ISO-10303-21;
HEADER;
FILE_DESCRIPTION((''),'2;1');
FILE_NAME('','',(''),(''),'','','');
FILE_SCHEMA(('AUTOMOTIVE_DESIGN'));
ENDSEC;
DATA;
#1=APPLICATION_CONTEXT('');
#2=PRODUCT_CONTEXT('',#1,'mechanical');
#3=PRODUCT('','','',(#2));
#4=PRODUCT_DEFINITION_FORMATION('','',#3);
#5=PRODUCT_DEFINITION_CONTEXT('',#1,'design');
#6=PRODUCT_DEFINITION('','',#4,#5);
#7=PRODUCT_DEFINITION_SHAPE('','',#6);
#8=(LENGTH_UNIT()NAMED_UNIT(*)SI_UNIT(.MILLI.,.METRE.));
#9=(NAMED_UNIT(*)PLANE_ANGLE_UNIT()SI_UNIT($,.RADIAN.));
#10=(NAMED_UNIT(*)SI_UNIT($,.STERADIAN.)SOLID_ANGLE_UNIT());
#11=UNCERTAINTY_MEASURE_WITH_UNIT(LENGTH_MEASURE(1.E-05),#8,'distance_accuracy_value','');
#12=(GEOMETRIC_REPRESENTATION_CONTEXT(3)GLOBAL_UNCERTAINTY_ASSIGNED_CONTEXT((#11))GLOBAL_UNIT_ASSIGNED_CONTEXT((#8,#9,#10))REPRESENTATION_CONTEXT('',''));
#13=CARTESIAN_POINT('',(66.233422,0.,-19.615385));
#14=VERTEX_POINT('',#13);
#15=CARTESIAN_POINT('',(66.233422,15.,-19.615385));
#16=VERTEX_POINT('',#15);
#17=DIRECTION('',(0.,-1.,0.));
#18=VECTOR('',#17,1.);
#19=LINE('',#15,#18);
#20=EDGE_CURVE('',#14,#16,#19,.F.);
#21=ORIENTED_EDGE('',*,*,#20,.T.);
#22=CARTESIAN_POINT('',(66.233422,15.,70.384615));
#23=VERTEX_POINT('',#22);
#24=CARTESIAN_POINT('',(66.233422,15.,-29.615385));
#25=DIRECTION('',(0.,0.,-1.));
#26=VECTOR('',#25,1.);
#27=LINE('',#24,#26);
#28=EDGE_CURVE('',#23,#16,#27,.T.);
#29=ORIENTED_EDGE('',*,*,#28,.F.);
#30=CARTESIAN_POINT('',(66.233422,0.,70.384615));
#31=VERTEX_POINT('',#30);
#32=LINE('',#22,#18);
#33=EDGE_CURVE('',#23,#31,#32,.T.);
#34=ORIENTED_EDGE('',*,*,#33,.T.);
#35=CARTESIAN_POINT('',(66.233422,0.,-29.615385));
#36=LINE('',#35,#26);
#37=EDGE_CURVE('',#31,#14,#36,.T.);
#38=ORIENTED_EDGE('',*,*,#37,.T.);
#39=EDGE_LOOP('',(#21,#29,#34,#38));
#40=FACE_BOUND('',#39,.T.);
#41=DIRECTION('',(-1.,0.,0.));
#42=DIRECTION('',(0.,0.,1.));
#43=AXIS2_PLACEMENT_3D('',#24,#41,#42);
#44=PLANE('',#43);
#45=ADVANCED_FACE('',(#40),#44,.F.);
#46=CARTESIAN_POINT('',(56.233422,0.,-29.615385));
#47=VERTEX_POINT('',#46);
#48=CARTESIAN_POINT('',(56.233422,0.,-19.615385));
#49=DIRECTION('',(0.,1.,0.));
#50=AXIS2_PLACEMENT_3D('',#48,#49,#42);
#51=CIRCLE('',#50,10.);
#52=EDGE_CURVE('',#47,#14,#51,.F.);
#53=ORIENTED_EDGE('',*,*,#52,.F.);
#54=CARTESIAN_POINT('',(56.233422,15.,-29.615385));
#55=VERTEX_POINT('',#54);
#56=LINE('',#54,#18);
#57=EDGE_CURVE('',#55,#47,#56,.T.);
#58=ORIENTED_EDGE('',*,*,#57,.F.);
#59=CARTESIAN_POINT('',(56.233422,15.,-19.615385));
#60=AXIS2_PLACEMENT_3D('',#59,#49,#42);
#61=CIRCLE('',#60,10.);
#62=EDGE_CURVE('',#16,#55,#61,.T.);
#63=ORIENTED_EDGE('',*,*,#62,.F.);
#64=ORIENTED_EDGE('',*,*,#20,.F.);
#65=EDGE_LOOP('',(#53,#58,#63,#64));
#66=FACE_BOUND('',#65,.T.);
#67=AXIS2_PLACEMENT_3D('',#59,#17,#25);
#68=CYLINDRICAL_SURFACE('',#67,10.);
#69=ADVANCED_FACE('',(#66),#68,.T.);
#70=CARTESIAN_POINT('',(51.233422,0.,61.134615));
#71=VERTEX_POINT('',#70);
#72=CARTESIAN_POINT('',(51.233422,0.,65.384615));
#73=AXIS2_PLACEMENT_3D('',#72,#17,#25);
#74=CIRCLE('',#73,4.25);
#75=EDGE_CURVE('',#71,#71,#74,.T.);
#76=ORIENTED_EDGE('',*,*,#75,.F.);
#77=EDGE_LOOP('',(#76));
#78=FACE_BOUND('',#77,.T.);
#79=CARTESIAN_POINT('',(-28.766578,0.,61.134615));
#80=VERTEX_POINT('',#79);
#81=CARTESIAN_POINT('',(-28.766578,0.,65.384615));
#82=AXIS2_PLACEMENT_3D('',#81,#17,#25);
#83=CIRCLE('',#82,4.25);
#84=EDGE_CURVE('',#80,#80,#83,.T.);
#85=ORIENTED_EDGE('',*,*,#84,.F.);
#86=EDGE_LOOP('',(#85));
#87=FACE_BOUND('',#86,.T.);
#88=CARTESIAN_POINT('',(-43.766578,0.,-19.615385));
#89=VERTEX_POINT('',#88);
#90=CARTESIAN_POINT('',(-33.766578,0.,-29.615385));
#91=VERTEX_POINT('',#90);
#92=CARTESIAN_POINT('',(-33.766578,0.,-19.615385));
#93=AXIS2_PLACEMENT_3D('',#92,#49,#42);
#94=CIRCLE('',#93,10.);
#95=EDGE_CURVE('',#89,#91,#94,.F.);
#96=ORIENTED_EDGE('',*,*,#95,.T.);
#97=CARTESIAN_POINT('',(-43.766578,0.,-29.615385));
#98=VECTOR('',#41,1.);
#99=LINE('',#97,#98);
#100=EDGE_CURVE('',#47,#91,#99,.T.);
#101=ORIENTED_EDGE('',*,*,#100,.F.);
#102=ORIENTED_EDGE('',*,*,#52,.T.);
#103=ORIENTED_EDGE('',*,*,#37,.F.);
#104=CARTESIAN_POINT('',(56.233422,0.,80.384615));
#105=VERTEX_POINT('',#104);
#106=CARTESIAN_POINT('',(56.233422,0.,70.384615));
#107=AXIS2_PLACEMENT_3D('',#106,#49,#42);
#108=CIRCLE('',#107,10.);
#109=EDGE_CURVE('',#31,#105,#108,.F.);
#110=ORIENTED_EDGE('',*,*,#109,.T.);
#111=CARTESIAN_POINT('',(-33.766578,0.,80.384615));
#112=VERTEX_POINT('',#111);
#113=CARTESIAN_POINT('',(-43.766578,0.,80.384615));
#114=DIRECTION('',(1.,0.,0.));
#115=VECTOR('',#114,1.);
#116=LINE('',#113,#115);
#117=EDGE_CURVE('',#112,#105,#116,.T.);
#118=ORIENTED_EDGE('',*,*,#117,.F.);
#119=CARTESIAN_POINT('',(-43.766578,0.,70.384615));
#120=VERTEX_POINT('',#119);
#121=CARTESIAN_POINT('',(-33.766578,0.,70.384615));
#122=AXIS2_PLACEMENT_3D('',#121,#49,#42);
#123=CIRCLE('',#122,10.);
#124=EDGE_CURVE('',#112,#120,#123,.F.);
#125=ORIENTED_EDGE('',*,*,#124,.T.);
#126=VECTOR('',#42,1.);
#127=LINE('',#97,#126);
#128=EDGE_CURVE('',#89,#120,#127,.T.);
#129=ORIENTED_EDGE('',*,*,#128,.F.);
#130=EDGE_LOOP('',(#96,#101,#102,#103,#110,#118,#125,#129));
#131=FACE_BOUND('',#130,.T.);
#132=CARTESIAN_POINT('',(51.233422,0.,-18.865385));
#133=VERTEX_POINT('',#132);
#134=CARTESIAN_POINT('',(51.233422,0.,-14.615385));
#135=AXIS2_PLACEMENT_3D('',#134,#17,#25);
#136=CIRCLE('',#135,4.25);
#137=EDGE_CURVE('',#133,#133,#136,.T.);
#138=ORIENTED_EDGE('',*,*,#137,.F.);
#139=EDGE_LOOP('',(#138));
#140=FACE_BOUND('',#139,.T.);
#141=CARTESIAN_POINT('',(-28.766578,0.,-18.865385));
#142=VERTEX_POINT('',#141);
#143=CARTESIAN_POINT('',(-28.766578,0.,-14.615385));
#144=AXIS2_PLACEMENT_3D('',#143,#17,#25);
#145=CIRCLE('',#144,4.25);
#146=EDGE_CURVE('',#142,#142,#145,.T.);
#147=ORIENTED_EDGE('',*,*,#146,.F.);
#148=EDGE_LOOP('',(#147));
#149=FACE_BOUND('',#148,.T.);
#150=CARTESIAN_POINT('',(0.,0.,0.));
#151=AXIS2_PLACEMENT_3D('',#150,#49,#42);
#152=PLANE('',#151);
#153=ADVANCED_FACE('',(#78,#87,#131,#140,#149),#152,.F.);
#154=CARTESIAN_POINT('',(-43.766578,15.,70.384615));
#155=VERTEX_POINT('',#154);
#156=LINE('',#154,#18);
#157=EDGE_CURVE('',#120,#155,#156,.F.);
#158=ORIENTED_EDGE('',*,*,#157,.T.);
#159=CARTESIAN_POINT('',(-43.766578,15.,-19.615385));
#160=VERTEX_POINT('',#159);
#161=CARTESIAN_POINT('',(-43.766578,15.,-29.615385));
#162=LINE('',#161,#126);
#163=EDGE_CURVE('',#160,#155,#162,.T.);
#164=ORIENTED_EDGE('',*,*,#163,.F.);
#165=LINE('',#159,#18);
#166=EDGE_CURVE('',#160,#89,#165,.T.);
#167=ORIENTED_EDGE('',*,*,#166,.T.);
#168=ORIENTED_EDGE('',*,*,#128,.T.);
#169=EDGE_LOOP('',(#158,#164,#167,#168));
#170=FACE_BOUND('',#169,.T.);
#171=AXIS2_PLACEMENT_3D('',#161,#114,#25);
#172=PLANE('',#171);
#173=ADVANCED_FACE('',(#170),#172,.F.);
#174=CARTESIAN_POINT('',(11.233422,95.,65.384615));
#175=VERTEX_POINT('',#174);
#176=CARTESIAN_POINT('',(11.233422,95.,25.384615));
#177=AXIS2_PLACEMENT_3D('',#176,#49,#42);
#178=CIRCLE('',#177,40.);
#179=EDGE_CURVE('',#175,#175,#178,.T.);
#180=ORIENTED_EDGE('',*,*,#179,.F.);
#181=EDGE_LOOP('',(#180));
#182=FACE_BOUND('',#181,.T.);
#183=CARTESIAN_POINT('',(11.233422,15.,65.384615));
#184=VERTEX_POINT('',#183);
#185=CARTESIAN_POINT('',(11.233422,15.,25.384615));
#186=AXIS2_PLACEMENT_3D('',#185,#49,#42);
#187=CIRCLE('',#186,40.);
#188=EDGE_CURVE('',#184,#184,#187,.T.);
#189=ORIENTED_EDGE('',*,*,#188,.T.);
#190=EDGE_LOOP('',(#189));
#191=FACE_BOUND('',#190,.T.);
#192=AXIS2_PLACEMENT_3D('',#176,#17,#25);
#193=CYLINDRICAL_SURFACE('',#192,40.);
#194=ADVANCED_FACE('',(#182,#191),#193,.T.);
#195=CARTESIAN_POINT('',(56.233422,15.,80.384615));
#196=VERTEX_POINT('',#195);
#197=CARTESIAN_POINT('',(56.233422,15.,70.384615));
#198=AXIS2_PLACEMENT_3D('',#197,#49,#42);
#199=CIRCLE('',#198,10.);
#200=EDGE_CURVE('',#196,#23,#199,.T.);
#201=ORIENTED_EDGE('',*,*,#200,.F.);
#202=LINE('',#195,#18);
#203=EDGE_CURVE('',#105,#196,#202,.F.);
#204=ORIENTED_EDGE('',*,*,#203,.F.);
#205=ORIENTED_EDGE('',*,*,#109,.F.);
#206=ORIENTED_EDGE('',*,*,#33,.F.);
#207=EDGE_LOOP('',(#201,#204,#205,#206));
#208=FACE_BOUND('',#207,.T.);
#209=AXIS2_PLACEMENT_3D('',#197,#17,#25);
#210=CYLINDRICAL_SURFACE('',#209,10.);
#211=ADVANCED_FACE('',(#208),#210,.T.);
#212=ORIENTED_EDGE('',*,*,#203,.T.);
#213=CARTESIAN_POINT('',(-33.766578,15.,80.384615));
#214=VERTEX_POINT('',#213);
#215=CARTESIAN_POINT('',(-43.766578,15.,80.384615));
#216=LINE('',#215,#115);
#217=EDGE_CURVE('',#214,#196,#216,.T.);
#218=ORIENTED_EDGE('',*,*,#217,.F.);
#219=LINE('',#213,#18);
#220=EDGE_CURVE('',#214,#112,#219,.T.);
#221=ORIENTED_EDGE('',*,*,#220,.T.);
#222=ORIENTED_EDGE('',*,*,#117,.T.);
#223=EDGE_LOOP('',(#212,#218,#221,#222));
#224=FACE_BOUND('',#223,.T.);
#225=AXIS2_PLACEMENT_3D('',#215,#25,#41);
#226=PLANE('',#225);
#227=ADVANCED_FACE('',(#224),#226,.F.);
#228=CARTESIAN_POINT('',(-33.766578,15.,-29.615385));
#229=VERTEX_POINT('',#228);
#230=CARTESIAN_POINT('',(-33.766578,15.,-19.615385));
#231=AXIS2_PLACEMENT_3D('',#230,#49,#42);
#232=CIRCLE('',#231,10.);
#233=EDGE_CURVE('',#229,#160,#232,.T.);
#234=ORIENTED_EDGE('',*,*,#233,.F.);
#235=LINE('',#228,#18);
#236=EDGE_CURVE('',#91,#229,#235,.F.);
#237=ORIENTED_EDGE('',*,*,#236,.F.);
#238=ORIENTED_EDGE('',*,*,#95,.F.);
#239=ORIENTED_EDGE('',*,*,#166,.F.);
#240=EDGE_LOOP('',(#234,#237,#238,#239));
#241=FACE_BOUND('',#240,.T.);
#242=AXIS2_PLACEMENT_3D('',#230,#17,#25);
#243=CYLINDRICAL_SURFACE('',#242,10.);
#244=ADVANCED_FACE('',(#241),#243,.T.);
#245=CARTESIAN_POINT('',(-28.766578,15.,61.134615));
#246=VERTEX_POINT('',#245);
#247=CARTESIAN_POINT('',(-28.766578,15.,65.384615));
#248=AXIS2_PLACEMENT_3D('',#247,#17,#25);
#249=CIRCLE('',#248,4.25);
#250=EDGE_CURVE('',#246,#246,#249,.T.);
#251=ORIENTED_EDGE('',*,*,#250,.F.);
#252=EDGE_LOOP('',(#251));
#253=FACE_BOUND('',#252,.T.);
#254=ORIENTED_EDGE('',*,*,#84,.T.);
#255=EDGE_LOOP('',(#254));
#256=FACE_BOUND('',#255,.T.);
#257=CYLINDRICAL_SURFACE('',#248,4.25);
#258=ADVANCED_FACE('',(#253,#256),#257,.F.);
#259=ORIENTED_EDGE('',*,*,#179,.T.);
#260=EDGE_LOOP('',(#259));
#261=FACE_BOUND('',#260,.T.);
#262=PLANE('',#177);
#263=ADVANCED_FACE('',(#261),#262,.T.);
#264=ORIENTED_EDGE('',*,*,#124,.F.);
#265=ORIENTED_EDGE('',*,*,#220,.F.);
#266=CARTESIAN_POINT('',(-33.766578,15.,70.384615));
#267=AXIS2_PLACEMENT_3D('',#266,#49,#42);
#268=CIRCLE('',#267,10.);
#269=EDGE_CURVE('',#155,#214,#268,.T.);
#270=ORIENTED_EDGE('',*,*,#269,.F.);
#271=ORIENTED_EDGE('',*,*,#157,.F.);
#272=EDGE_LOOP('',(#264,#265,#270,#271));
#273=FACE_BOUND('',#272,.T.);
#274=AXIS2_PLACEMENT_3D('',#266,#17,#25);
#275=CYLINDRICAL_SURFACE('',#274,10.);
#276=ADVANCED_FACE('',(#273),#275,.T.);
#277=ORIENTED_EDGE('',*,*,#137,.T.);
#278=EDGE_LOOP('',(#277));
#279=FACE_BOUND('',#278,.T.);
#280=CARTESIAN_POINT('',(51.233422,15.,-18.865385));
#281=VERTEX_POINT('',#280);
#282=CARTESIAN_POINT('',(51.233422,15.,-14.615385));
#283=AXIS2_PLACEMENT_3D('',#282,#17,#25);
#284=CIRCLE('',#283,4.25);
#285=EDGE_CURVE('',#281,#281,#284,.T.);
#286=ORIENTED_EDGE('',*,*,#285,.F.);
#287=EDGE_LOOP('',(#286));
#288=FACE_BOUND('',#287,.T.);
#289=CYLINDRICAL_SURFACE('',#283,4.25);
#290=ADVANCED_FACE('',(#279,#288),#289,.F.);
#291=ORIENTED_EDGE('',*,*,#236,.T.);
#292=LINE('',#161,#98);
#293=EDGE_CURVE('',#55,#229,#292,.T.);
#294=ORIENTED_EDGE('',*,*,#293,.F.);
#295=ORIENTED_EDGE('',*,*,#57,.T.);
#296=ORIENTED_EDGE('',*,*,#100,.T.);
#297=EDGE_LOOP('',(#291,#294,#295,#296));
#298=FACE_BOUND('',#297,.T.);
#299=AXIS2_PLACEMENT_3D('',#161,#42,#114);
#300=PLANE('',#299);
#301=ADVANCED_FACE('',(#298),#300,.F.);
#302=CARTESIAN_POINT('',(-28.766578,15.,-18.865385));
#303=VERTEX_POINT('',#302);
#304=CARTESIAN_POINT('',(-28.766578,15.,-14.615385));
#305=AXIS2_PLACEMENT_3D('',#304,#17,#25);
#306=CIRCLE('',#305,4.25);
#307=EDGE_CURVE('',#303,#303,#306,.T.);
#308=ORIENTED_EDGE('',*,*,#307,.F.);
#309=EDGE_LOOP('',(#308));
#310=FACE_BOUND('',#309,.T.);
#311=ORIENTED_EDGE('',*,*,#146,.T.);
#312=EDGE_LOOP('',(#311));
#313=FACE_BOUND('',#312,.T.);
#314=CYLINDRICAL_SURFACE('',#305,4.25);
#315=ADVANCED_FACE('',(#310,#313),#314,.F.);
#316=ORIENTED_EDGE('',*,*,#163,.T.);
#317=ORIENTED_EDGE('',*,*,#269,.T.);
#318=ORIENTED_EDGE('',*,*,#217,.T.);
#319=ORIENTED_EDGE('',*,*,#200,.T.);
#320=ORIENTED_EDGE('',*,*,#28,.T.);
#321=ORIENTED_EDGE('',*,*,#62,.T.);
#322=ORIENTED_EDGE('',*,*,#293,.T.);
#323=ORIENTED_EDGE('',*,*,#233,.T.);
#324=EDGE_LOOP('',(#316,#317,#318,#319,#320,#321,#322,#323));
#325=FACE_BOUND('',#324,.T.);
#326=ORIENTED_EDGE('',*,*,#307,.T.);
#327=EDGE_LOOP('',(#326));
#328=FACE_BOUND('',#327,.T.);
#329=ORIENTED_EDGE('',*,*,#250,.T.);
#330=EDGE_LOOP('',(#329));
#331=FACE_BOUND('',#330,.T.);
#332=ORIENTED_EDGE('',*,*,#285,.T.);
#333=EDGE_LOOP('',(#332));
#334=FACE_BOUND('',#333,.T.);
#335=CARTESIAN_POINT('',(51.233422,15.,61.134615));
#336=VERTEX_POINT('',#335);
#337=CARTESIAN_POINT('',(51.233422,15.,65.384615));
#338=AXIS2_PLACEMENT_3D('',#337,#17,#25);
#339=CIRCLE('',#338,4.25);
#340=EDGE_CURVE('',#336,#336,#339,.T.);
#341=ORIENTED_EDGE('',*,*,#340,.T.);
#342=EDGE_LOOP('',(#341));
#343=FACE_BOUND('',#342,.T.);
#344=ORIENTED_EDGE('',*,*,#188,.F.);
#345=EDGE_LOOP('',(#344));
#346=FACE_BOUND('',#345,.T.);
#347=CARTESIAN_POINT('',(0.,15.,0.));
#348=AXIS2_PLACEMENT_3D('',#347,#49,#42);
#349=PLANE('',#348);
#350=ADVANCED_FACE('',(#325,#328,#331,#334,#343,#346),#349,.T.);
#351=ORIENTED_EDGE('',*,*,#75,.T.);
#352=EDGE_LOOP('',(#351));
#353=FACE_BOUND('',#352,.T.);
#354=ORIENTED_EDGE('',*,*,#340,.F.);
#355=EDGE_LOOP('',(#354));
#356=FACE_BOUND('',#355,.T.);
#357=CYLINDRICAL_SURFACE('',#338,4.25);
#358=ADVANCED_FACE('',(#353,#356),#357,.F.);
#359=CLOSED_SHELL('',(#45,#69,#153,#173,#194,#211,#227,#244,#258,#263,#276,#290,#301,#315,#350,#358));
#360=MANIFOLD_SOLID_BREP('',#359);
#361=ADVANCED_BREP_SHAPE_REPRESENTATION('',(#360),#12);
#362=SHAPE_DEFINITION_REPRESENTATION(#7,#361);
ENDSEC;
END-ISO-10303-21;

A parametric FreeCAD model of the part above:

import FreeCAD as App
import Part
import Sketcher


def edges_at(feature, points):
    """Names of the edges that pass closest to the given points."""
    edges = feature.Shape.Edges
    near = lambda p: min(range(len(edges)), key=lambda i: edges[i].distToShape(Part.Vertex(*p))[0])
    return sorted({f"Edge{near(p) + 1}" for p in points})


def add_polygon(sketch, points):
    """Adds a closed chain of lines whose ends are joined by coincident constraints."""
    first, n = sketch.GeometryCount, len(points)
    for a, b in zip(points, points[1:] + points[:1]):
        sketch.addGeometry(Part.LineSegment(App.Vector(*a, 0), App.Vector(*b, 0)), False)
    for i in range(n):
        sketch.addConstraint(Sketcher.Constraint("Coincident", first + i, 2, first + (i + 1) % n, 1))

doc = App.newDocument("Part")
body = doc.addObject("PartDesign::Body", "Body")

# Sketch on XZ plane
sketch1 = body.newObject("Sketcher::SketchObject", "Sketch")
sketch1.AttachmentSupport = (doc.getObject("XZ_Plane"), [""])
sketch1.MapMode = "FlatFace"
add_polygon(sketch1, [(-44, -30), (-44, 80), (66, 80), (66, -30)])  # lines 0-3
sketch1.addConstraint(Sketcher.Constraint("Vertical", 0))
sketch1.addConstraint(Sketcher.Constraint("Horizontal", 1))
sketch1.addConstraint(Sketcher.Constraint("Vertical", 2))
sketch1.addConstraint(Sketcher.Constraint("Horizontal", 3))
sketch1.addConstraint(Sketcher.Constraint("Equal", 3, 0))
sketch1.addConstraint(Sketcher.Constraint("DistanceX", 1, 1, 1, 2, 110.0))
sketch1.addConstraint(Sketcher.Constraint("DistanceX", 0, 2, -1, 1, 43.766578))
sketch1.addConstraint(Sketcher.Constraint("DistanceY", -1, 1, 0, 2, 80.384615))
pad1 = body.newObject("PartDesign::Pad", "Pad")
pad1.Profile = sketch1
pad1.Length = 15
pad1.Reversed = True

# Sketch on XZ plane
sketch2 = body.newObject("Sketcher::SketchObject", "Sketch001")
sketch2.AttachmentSupport = (doc.getObject("XZ_Plane"), [""])
sketch2.MapMode = "FlatFace"
sketch2.addGeometry(Part.Circle(App.Vector(-28.8, 65.4, 0), App.Vector(0, 0, 1), 4.2), False)
sketch2.addGeometry(Part.Circle(App.Vector(51.2, 65.4, 0), App.Vector(0, 0, 1), 4.2), False)
sketch2.addGeometry(Part.Circle(App.Vector(51.2, -14.6, 0), App.Vector(0, 0, 1), 4.2), False)
sketch2.addGeometry(Part.Circle(App.Vector(-28.8, -14.6, 0), App.Vector(0, 0, 1), 4.2), False)
sketch2.addConstraint(Sketcher.Constraint("Equal", 0, 1))
sketch2.addConstraint(Sketcher.Constraint("Equal", 1, 2))
sketch2.addConstraint(Sketcher.Constraint("Equal", 2, 3))
sketch2.addConstraint(Sketcher.Constraint("Horizontal", 0, 3, 1, 3))
sketch2.addConstraint(Sketcher.Constraint("Horizontal", 2, 3, 3, 3))
sketch2.addConstraint(Sketcher.Constraint("Vertical", 1, 3, 2, 3))
sketch2.addConstraint(Sketcher.Constraint("Vertical", 0, 3, 3, 3))
sketch2.addConstraint(Sketcher.Constraint("Diameter", 0, 8.5))
sketch2.addConstraint(Sketcher.Constraint("DistanceX", 0, 3, 1, 3, 80.0))
sketch2.addConstraint(Sketcher.Constraint("DistanceY", 2, 3, 1, 3, 80.0))
sketch2.addConstraint(Sketcher.Constraint("DistanceX", 0, 3, -1, 1, 28.766578))
sketch2.addConstraint(Sketcher.Constraint("DistanceY", -1, 1, 0, 3, 65.384615))
pocket1 = body.newObject("PartDesign::Pocket", "Pocket")
pocket1.Profile = sketch2
pocket1.Length = 15
doc.recompute()

fillet = body.newObject("PartDesign::Fillet", "Fillet")
fillet.Base = (pocket1, edges_at(pocket1, [
    (-43.767, 7.5, -29.615),
    (66.233, 7.5, -29.615),
    (66.233, 7.5, 80.385),
    (-43.767, 7.5, 80.385),
]))
fillet.Radius = 10

# Sketch on XZ plane
sketch3 = body.newObject("Sketcher::SketchObject", "Sketch002")
sketch3.AttachmentSupport = (doc.getObject("XZ_Plane"), [""])
sketch3.MapMode = "FlatFace"
sketch3.AttachmentOffset = App.Placement(App.Vector(0, 0, -15), App.Rotation())
sketch3.addGeometry(Part.Circle(App.Vector(11, 25, 0), App.Vector(0, 0, 1), 40), False)
sketch3.addConstraint(Sketcher.Constraint("Diameter", 0, 80.0))
sketch3.addConstraint(Sketcher.Constraint("DistanceX", -1, 1, 0, 3, 11.233422))
sketch3.addConstraint(Sketcher.Constraint("DistanceY", -1, 1, 0, 3, 25.384615))
pad2 = body.newObject("PartDesign::Pad", "Pad001")
pad2.Profile = sketch3
pad2.Length = 80
pad2.Reversed = True

doc.recompute()
